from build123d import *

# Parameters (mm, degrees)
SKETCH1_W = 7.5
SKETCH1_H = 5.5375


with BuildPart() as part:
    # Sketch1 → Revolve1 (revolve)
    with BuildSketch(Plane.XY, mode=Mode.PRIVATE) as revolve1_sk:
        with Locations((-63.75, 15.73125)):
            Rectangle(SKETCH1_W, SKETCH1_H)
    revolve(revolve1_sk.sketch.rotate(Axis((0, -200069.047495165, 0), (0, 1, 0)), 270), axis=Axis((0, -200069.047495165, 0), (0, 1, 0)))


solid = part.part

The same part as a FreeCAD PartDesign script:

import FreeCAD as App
import Part
import Sketcher
from FreeCAD import Vector

doc = App.newDocument("Part")
body = doc.addObject("PartDesign::Body", "Body")

# Sketch on XY plane
sketch1 = body.newObject("Sketcher::SketchObject", "Sketch")
sketch1.AttachmentSupport = (doc.getObject("XY_Plane"), [""])
sketch1.MapMode = "FlatFace"
sketch1.addGeometry([
    Part.LineSegment(Vector(-67.5, 18.5, 0), Vector(-67.5, 12.9625, 0)),
    Part.LineSegment(Vector(-67.5, 12.9625, 0), Vector(-60, 12.9625, 0)),
    Part.LineSegment(Vector(-60, 12.9625, 0), Vector(-60, 18.5, 0)),
    Part.LineSegment(Vector(-60, 18.5, 0), Vector(-67.5, 18.5, 0)),
], False)
sketch1.addConstraint([
    Sketcher.Constraint("Coincident", 0, 2, 1, 1),
    Sketcher.Constraint("Coincident", 1, 2, 2, 1),
    Sketcher.Constraint("Coincident", 2, 2, 3, 1),
    Sketcher.Constraint("Coincident", 3, 2, 0, 1),
    Sketcher.Constraint("Vertical", 0),
    Sketcher.Constraint("Horizontal", 1),
    Sketcher.Constraint("Vertical", 2),
    Sketcher.Constraint("Horizontal", 3),
    Sketcher.Constraint("DistanceX", 1, 1, 1, 2, 7.5),
    Sketcher.Constraint("DistanceX", 1, 2, -1, 1, 60.0),
    Sketcher.Constraint("DistanceY", -1, 1, 2, 2, 18.5),
    Sketcher.Constraint("DistanceY", 0, 2, 0, 1, 5.5375),
])
revolution = body.newObject("PartDesign::Revolution", "Revolution")
revolution.Profile = sketch1
revolution.ReferenceAxis = (sketch1, ["V_Axis"])
revolution.Angle = 360

doc.recompute()
